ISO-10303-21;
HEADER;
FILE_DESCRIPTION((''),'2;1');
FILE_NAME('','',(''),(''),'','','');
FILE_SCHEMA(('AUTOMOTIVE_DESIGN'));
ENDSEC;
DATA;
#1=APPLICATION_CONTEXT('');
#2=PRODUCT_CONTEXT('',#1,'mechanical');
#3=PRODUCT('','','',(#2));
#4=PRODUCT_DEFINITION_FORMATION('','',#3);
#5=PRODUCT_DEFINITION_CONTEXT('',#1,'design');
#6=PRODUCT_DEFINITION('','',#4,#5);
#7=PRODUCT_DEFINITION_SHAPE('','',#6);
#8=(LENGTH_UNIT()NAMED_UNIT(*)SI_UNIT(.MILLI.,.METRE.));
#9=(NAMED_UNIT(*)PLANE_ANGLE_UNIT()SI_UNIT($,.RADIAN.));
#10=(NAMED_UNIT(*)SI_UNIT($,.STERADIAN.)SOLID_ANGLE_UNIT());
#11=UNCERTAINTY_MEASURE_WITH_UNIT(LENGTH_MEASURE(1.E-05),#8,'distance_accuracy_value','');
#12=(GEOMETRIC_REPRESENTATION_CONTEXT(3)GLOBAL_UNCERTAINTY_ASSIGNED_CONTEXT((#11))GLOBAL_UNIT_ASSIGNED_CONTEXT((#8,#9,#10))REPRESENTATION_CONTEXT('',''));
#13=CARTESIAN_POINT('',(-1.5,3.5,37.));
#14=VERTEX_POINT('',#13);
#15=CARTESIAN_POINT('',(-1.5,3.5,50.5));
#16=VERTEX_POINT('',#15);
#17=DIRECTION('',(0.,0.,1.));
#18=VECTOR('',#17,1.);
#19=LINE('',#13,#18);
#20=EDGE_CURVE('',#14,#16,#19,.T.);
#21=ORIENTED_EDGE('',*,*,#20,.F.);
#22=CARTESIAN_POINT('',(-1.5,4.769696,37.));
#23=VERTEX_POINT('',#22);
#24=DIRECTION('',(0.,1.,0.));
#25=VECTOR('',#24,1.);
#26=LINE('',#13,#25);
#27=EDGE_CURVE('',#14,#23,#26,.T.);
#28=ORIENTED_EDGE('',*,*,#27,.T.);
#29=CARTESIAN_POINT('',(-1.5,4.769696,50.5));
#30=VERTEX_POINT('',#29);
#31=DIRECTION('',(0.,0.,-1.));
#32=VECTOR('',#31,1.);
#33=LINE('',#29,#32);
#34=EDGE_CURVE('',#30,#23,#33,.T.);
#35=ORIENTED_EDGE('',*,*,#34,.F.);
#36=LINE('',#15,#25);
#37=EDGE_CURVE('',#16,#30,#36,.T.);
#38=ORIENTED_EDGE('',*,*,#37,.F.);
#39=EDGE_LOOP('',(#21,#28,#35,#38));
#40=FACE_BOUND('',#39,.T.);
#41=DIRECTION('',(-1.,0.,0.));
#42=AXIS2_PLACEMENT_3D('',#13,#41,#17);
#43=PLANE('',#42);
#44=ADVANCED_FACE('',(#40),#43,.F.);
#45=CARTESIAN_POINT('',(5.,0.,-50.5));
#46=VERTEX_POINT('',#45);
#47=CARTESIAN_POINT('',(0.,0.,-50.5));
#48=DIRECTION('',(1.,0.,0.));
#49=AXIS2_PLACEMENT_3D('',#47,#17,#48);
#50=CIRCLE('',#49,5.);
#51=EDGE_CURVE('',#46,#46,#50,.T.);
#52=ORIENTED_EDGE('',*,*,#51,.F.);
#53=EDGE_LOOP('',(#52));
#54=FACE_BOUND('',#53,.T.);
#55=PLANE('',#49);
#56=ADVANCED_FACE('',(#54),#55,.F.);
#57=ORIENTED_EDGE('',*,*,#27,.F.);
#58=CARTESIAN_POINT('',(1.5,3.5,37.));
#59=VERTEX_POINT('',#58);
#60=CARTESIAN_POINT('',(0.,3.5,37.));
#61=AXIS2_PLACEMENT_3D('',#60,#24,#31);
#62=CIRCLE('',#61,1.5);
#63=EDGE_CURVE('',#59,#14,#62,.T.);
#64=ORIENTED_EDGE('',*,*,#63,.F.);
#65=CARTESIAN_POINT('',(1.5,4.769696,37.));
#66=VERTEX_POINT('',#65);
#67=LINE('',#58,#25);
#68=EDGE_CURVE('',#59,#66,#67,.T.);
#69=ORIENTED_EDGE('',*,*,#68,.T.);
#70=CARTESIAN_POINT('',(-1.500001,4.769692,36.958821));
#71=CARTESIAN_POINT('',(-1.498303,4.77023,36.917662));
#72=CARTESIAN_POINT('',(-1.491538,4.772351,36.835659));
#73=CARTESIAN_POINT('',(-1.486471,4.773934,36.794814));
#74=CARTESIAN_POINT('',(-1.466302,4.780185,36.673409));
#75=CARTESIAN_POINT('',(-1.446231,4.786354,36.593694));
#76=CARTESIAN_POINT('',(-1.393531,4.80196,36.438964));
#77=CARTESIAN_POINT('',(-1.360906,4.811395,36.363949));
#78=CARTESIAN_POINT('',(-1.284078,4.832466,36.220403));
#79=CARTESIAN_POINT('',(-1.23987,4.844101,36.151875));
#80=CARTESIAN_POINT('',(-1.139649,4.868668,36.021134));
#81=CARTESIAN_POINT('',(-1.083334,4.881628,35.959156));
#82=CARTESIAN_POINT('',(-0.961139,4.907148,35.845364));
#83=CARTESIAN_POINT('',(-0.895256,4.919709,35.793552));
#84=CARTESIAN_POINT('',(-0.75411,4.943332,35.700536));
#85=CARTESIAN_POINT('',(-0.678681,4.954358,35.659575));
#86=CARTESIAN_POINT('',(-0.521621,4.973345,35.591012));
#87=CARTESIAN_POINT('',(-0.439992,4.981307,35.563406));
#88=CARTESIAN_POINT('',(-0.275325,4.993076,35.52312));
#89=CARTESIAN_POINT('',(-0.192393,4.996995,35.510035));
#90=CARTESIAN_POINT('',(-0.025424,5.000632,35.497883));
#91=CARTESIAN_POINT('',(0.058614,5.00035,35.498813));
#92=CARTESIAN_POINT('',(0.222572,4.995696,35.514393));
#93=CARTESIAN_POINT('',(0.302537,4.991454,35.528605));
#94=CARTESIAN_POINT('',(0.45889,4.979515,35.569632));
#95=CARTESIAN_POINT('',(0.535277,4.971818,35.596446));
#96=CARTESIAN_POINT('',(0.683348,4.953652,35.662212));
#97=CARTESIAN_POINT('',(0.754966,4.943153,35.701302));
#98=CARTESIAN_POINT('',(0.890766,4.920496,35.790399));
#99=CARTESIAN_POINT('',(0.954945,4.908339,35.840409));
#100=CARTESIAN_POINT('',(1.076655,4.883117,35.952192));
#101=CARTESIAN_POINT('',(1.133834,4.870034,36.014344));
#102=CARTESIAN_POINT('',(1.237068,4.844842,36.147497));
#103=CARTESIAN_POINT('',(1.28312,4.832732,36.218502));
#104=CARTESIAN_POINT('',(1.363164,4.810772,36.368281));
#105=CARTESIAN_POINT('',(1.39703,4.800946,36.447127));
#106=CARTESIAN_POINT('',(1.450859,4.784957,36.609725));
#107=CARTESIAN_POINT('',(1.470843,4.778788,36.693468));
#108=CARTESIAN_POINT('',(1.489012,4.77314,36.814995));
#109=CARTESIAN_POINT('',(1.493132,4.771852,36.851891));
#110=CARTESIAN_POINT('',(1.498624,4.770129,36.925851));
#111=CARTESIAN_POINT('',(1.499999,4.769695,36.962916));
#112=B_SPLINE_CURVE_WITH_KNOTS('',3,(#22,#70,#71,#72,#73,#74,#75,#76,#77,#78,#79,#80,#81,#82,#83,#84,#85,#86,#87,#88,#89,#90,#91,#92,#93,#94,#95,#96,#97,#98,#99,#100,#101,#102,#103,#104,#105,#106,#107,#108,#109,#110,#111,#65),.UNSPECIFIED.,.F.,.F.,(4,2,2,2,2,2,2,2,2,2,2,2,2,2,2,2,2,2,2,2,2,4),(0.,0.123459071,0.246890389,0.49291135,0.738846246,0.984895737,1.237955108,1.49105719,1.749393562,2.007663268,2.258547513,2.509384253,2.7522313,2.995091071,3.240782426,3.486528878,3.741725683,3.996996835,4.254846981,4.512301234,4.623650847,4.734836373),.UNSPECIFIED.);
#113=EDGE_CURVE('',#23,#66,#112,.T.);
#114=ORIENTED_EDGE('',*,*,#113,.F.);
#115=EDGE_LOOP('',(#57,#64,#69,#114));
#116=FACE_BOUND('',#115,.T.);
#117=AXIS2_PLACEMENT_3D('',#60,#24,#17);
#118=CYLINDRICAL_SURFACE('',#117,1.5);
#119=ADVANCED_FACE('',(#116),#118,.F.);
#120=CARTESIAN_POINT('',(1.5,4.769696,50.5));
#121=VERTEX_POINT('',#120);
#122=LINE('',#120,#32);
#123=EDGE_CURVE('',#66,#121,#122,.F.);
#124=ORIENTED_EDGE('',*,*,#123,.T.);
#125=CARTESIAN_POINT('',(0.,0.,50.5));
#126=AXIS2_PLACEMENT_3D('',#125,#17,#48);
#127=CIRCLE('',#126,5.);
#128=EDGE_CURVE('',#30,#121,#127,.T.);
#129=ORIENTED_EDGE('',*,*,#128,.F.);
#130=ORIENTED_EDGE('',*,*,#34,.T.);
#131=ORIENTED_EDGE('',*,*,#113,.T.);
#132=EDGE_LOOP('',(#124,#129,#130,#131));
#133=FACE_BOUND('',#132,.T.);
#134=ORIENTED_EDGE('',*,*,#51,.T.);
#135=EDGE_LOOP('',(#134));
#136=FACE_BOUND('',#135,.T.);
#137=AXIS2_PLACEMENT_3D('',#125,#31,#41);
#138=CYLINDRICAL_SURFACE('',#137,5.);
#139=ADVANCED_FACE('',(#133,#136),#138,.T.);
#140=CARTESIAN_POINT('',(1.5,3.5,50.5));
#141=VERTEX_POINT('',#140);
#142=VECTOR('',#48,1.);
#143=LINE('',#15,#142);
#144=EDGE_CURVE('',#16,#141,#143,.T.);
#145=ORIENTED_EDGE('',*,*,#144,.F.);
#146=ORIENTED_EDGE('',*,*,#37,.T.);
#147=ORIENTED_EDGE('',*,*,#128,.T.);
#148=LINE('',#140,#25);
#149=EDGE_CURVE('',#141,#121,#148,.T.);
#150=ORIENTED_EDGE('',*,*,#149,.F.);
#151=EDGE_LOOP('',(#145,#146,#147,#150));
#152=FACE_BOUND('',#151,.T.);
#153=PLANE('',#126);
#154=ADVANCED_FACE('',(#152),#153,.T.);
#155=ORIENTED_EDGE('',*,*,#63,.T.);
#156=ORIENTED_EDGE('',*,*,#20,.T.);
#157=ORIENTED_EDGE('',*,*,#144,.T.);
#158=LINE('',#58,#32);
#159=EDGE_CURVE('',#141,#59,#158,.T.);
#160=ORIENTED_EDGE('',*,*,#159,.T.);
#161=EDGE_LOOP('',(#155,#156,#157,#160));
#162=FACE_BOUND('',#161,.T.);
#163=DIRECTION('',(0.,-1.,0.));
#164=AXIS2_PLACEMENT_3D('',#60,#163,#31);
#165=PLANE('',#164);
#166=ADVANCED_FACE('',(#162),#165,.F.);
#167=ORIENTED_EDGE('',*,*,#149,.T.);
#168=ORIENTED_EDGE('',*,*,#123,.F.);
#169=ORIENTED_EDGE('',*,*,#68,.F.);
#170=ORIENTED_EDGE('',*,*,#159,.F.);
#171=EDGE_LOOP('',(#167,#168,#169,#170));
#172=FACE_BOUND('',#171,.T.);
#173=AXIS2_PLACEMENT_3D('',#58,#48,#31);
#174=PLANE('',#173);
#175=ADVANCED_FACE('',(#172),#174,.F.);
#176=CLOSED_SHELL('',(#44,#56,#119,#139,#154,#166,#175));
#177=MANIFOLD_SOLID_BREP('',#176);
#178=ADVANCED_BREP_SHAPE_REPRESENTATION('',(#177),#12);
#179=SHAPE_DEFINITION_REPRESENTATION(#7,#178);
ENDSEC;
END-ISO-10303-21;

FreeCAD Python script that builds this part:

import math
import FreeCAD as App
import Part
import Sketcher

V = App.Vector

doc = App.newDocument("Part")
body = doc.addObject("PartDesign::Body", "Body")

# Sketch on XY plane
sketch1 = doc.addObject("Sketcher::SketchObject", "Sketch")
body.addObject(sketch1)
sketch1.AttachmentSupport = (doc.XY_Plane, [""])
sketch1.MapMode = "FlatFace"
sketch1.addGeometry(Part.Circle(V(0, 0, 0), V(0, 0, 1), 5), False)
sketch1.addConstraint([
    Sketcher.Constraint("Coincident", 0, 3, -1, 1),
    Sketcher.Constraint("Diameter", 0, 10.0),
])
pad1 = doc.addObject("PartDesign::Pad", "Pad")
body.addObject(pad1)
pad1.Profile = sketch1
pad1.Length = 101
pad1.Midplane = True

# Sketch on XZ plane
sketch2 = doc.addObject("Sketcher::SketchObject", "Sketch001")
body.addObject(sketch2)
sketch2.AttachmentSupport = (doc.XZ_Plane, [""])
sketch2.MapMode = "FlatFace"
sketch2.AttachmentOffset = App.Placement(V(0, 0, -5), App.Rotation())
sketch2.addGeometry([
    Part.LineSegment(V(-1.5, 37, 0), V(-1.5, 50.5, 0)),
    Part.LineSegment(V(-1.5, 50.5, 0), V(1.5, 50.5, 0)),
    Part.LineSegment(V(1.5, 50.5, 0), V(1.5, 37, 0)),
    Part.ArcOfCircle(Part.Circle(V(0, 37, 0), V(0, 0, 1), 1.5), math.radians(180), math.radians(360)),
], False)
sketch2.addConstraint([
    Sketcher.Constraint("Coincident", 0, 2, 1, 1),
    Sketcher.Constraint("Coincident", 1, 2, 2, 1),
    Sketcher.Constraint("Tangent", 2, 2, 3, 2),
    Sketcher.Constraint("Tangent", 3, 1, 0, 1),
    Sketcher.Constraint("Vertical", 0),
    Sketcher.Constraint("Horizontal", 1),
    Sketcher.Constraint("Vertical", 2),
    Sketcher.Constraint("PointOnObject", 3, 3, -2),
    Sketcher.Constraint("Radius", 3, 1.5),
    Sketcher.Constraint("DistanceY", 0, 1, 0, 2, 13.5),
    Sketcher.Constraint("DistanceY", -1, 1, 3, 3, 37.0),
])
pocket1 = doc.addObject("PartDesign::Pocket", "Pocket")
body.addObject(pocket1)
pocket1.Profile = sketch2
pocket1.Length = 1.5
pocket1.Reversed = True

doc.recompute()
